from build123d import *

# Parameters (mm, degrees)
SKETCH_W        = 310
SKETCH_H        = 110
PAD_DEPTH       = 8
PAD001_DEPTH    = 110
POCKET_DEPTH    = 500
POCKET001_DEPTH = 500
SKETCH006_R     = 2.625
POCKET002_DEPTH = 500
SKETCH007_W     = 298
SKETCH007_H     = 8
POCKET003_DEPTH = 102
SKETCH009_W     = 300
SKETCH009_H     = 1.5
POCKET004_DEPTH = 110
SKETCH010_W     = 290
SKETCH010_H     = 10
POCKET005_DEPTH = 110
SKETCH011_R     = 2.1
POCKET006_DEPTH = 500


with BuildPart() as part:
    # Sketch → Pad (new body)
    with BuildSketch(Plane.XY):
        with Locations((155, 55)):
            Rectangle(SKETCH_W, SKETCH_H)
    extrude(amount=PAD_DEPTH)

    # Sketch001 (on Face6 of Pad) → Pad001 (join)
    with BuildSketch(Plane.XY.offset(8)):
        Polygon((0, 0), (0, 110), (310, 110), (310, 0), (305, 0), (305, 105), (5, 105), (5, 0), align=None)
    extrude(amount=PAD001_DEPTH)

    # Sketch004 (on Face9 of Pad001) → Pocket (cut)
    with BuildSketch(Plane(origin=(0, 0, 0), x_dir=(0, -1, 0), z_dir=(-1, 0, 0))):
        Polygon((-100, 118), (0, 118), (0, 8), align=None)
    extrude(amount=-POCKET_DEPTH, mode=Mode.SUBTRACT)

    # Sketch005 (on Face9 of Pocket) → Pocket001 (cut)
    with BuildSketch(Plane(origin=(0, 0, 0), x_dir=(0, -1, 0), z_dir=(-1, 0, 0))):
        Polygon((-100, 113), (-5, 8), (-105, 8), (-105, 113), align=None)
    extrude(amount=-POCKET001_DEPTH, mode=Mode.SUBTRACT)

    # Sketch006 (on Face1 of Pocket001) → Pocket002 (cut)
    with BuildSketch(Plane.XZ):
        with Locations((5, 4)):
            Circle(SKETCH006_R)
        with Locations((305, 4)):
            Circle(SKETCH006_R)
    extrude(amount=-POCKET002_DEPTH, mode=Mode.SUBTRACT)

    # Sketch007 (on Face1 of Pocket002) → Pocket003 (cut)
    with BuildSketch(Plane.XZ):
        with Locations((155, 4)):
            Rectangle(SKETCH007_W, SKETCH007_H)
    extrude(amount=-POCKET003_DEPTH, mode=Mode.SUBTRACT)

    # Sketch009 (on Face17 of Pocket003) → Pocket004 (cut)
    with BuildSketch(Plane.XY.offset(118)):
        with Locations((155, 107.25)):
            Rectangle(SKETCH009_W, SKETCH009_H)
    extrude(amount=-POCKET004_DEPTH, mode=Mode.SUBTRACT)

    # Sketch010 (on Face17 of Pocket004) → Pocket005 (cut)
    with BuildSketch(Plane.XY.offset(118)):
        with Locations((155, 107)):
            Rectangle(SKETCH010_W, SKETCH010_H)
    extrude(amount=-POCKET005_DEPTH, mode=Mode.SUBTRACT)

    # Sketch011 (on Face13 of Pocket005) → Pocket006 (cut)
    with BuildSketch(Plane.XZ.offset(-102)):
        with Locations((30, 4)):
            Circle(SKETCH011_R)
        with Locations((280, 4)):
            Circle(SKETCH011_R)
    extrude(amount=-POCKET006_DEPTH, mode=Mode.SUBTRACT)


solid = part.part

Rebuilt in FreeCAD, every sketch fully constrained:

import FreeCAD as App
import Part
import Sketcher


def add_polygon(sketch, points):
    """Adds a closed chain of lines whose ends are joined by coincident constraints."""
    first, n = sketch.GeometryCount, len(points)
    for a, b in zip(points, points[1:] + points[:1]):
        sketch.addGeometry(Part.LineSegment(App.Vector(*a, 0), App.Vector(*b, 0)), False)
    for i in range(n):
        sketch.addConstraint(Sketcher.Constraint("Coincident", first + i, 2, first + (i + 1) % n, 1))

doc = App.newDocument("Part")
body = doc.addObject("PartDesign::Body", "Body")

# Sketch on XY plane
sketch1 = doc.addObject("Sketcher::SketchObject", "Sketch")
body.addObject(sketch1)
sketch1.AttachmentSupport = (doc.XY_Plane, [""])
sketch1.MapMode = "FlatFace"
add_polygon(sketch1, [(0, 110), (0, 0), (310, 0), (310, 110)])  # lines 0-3
sketch1.addConstraint(Sketcher.Constraint("Vertical", 0))
sketch1.addConstraint(Sketcher.Constraint("Horizontal", 1))
sketch1.addConstraint(Sketcher.Constraint("Vertical", 2))
sketch1.addConstraint(Sketcher.Constraint("Horizontal", 3))
sketch1.addConstraint(Sketcher.Constraint("Coincident", 0, 2, -1, 1))
sketch1.addConstraint(Sketcher.Constraint("DistanceX", 1, 1, 1, 2, 310.0))
sketch1.addConstraint(Sketcher.Constraint("DistanceY", 0, 2, 0, 1, 110.0))
pad1 = doc.addObject("PartDesign::Pad", "Pad")
body.addObject(pad1)
pad1.Profile = sketch1
pad1.Length = 8

# Sketch on XY plane
sketch2 = doc.addObject("Sketcher::SketchObject", "Sketch001")
body.addObject(sketch2)
sketch2.AttachmentSupport = (doc.XY_Plane, [""])
sketch2.MapMode = "FlatFace"
sketch2.AttachmentOffset = App.Placement(App.Vector(0, 0, 8), App.Rotation())
add_polygon(sketch2, [(0, 110), (0, 0), (5, 0), (5, 105), (305, 105), (305, 0), (310, 0), (310, 110)])  # lines 0-7
sketch2.addConstraint(Sketcher.Constraint("Vertical", 0))
sketch2.addConstraint(Sketcher.Constraint("Horizontal", 1))
sketch2.addConstraint(Sketcher.Constraint("Vertical", 2))
sketch2.addConstraint(Sketcher.Constraint("Horizontal", 3))
sketch2.addConstraint(Sketcher.Constraint("Vertical", 4))
sketch2.addConstraint(Sketcher.Constraint("Horizontal", 5))
sketch2.addConstraint(Sketcher.Constraint("Vertical", 6))
sketch2.addConstraint(Sketcher.Constraint("Horizontal", 7))
sketch2.addConstraint(Sketcher.Constraint("Coincident", 0, 2, -1, 1))
sketch2.addConstraint(Sketcher.Constraint("PointOnObject", 4, 2, -1))
sketch2.addConstraint(Sketcher.Constraint("Equal", 1, 5))
sketch2.addConstraint(Sketcher.Constraint("DistanceX", 1, 1, 1, 2, 5.0))
sketch2.addConstraint(Sketcher.Constraint("DistanceX", 3, 1, 3, 2, 300.0))
sketch2.addConstraint(Sketcher.Constraint("DistanceY", 0, 2, 0, 1, 110.0))
sketch2.addConstraint(Sketcher.Constraint("DistanceY", 2, 1, 2, 2, 105.0))
pad2 = doc.addObject("PartDesign::Pad", "Pad001")
body.addObject(pad2)
pad2.Profile = sketch2
pad2.Length = 110

# Sketch on YZ plane
sketch3 = doc.addObject("Sketcher::SketchObject", "Sketch002")
body.addObject(sketch3)
sketch3.AttachmentSupport = (doc.YZ_Plane, [""])
sketch3.MapMode = "FlatFace"
add_polygon(sketch3, [(0, 118), (100, 118), (0, 8)])  # lines 0-2
sketch3.addConstraint(Sketcher.Constraint("Horizontal", 0))
sketch3.addConstraint(Sketcher.Constraint("Vertical", 2))
sketch3.addConstraint(Sketcher.Constraint("PointOnObject", 1, 2, -2))
sketch3.addConstraint(Sketcher.Constraint("DistanceX", 0, 1, 0, 2, 100.0))
sketch3.addConstraint(Sketcher.Constraint("DistanceY", 2, 1, 2, 2, 110.0))
sketch3.addConstraint(Sketcher.Constraint("DistanceY", -1, 1, 0, 2, 118.0))
pocket1 = doc.addObject("PartDesign::Pocket", "Pocket")
body.addObject(pocket1)
pocket1.Profile = sketch3
pocket1.Length = 500
pocket1.Reversed = True

# Sketch on YZ plane
sketch4 = doc.addObject("Sketcher::SketchObject", "Sketch003")
body.addObject(sketch4)
sketch4.AttachmentSupport = (doc.YZ_Plane, [""])
sketch4.MapMode = "FlatFace"
add_polygon(sketch4, [(5, 8), (100, 113), (105, 113), (105, 8)])  # lines 0-3
sketch4.addConstraint(Sketcher.Constraint("Horizontal", 1))
sketch4.addConstraint(Sketcher.Constraint("Vertical", 2))
sketch4.addConstraint(Sketcher.Constraint("Horizontal", 3))
sketch4.addConstraint(Sketcher.Constraint("DistanceX", 1, 1, 1, 2, 5.0))
sketch4.addConstraint(Sketcher.Constraint("DistanceX", 3, 2, 3, 1, 100.0))
sketch4.addConstraint(Sketcher.Constraint("DistanceY", 2, 2, 2, 1, 105.0))
sketch4.addConstraint(Sketcher.Constraint("DistanceX", -1, 1, 0, 2, 100.0))
sketch4.addConstraint(Sketcher.Constraint("DistanceY", -1, 1, 0, 2, 113.0))
pocket2 = doc.addObject("PartDesign::Pocket", "Pocket001")
body.addObject(pocket2)
pocket2.Profile = sketch4
pocket2.Length = 500
pocket2.Reversed = True

# Sketch on XZ plane
sketch5 = doc.addObject("Sketcher::SketchObject", "Sketch004")
body.addObject(sketch5)
sketch5.AttachmentSupport = (doc.XZ_Plane, [""])
sketch5.MapMode = "FlatFace"
sketch5.addGeometry(Part.Circle(App.Vector(5, 4, 0), App.Vector(0, 0, 1), 2.625), False)
sketch5.addGeometry(Part.Circle(App.Vector(305, 4, 0), App.Vector(0, 0, 1), 2.625), False)
sketch5.addConstraint(Sketcher.Constraint("Equal", 0, 1))
sketch5.addConstraint(Sketcher.Constraint("Horizontal", 0, 3, 1, 3))
sketch5.addConstraint(Sketcher.Constraint("Diameter", 0, 5.25))
sketch5.addConstraint(Sketcher.Constraint("DistanceX", -1, 1, 0, 3, 5.0))
sketch5.addConstraint(Sketcher.Constraint("DistanceY", -1, 1, 0, 3, 4.0))
sketch5.addConstraint(Sketcher.Constraint("DistanceX", -1, 1, 1, 3, 305.0))
pocket3 = doc.addObject("PartDesign::Pocket", "Pocket002")
body.addObject(pocket3)
pocket3.Profile = sketch5
pocket3.Length = 500

# Sketch on XZ plane
sketch6 = doc.addObject("Sketcher::SketchObject", "Sketch005")
body.addObject(sketch6)
sketch6.AttachmentSupport = (doc.XZ_Plane, [""])
sketch6.MapMode = "FlatFace"
add_polygon(sketch6, [(6, 8), (6, 0), (304, 0), (304, 8)])  # lines 0-3
sketch6.addConstraint(Sketcher.Constraint("Vertical", 0))
sketch6.addConstraint(Sketcher.Constraint("Horizontal", 1))
sketch6.addConstraint(Sketcher.Constraint("Vertical", 2))
sketch6.addConstraint(Sketcher.Constraint("Horizontal", 3))
sketch6.addConstraint(Sketcher.Constraint("PointOnObject", 0, 2, -1))
sketch6.addConstraint(Sketcher.Constraint("DistanceX", 1, 1, 1, 2, 298.0))
sketch6.addConstraint(Sketcher.Constraint("DistanceY", 0, 2, 0, 1, 8.0))
sketch6.addConstraint(Sketcher.Constraint("DistanceX", -1, 1, 0, 2, 6.0))
pocket4 = doc.addObject("PartDesign::Pocket", "Pocket003")
body.addObject(pocket4)
pocket4.Profile = sketch6
pocket4.Length = 102

# Sketch on XY plane
sketch7 = doc.addObject("Sketcher::SketchObject", "Sketch006")
body.addObject(sketch7)
sketch7.AttachmentSupport = (doc.XY_Plane, [""])
sketch7.MapMode = "FlatFace"
sketch7.AttachmentOffset = App.Placement(App.Vector(0, 0, 118), App.Rotation())
add_polygon(sketch7, [(5, 108), (5, 106.5), (305, 106.5), (305, 108)])  # lines 0-3
sketch7.addConstraint(Sketcher.Constraint("Vertical", 0))
sketch7.addConstraint(Sketcher.Constraint("Horizontal", 1))
sketch7.addConstraint(Sketcher.Constraint("Vertical", 2))
sketch7.addConstraint(Sketcher.Constraint("Horizontal", 3))
sketch7.addConstraint(Sketcher.Constraint("DistanceX", 1, 1, 1, 2, 300.0))
sketch7.addConstraint(Sketcher.Constraint("DistanceY", 0, 2, 0, 1, 1.5))
sketch7.addConstraint(Sketcher.Constraint("DistanceX", -1, 1, 0, 2, 5.0))
sketch7.addConstraint(Sketcher.Constraint("DistanceY", -1, 1, 2, 2, 108.0))
pocket5 = doc.addObject("PartDesign::Pocket", "Pocket004")
body.addObject(pocket5)
pocket5.Profile = sketch7
pocket5.Length = 110

# Sketch on XY plane
sketch8 = doc.addObject("Sketcher::SketchObject", "Sketch007")
body.addObject(sketch8)
sketch8.AttachmentSupport = (doc.XY_Plane, [""])
sketch8.MapMode = "FlatFace"
sketch8.AttachmentOffset = App.Placement(App.Vector(0, 0, 118), App.Rotation())
add_polygon(sketch8, [(10, 112), (10, 102), (300, 102), (300, 112)])  # lines 0-3
sketch8.addConstraint(Sketcher.Constraint("Vertical", 0))
sketch8.addConstraint(Sketcher.Constraint("Horizontal", 1))
sketch8.addConstraint(Sketcher.Constraint("Vertical", 2))
sketch8.addConstraint(Sketcher.Constraint("Horizontal", 3))
sketch8.addConstraint(Sketcher.Constraint("DistanceX", 1, 1, 1, 2, 290.0))
sketch8.addConstraint(Sketcher.Constraint("DistanceY", 0, 2, 0, 1, 10.0))
sketch8.addConstraint(Sketcher.Constraint("DistanceX", -1, 1, 0, 2, 10.0))
sketch8.addConstraint(Sketcher.Constraint("DistanceY", -1, 1, 0, 2, 102.0))
pocket6 = doc.addObject("PartDesign::Pocket", "Pocket005")
body.addObject(pocket6)
pocket6.Profile = sketch8
pocket6.Length = 110

# Sketch on XZ plane
sketch9 = doc.addObject("Sketcher::SketchObject", "Sketch008")
body.addObject(sketch9)
sketch9.AttachmentSupport = (doc.XZ_Plane, [""])
sketch9.MapMode = "FlatFace"
sketch9.AttachmentOffset = App.Placement(App.Vector(0, 0, -102), App.Rotation())
sketch9.addGeometry(Part.Circle(App.Vector(30, 4, 0), App.Vector(0, 0, 1), 2.1), False)
sketch9.addGeometry(Part.Circle(App.Vector(280, 4, 0), App.Vector(0, 0, 1), 2.1), False)
sketch9.addConstraint(Sketcher.Constraint("Equal", 0, 1))
sketch9.addConstraint(Sketcher.Constraint("Horizontal", 0, 3, 1, 3))
sketch9.addConstraint(Sketcher.Constraint("Diameter", 0, 4.2))
sketch9.addConstraint(Sketcher.Constraint("DistanceX", -1, 1, 0, 3, 30.0))
sketch9.addConstraint(Sketcher.Constraint("DistanceY", -1, 1, 0, 3, 4.0))
sketch9.addConstraint(Sketcher.Constraint("DistanceX", -1, 1, 1, 3, 280.0))
pocket7 = doc.addObject("PartDesign::Pocket", "Pocket006")
body.addObject(pocket7)
pocket7.Profile = sketch9
pocket7.Length = 500

doc.recompute()
